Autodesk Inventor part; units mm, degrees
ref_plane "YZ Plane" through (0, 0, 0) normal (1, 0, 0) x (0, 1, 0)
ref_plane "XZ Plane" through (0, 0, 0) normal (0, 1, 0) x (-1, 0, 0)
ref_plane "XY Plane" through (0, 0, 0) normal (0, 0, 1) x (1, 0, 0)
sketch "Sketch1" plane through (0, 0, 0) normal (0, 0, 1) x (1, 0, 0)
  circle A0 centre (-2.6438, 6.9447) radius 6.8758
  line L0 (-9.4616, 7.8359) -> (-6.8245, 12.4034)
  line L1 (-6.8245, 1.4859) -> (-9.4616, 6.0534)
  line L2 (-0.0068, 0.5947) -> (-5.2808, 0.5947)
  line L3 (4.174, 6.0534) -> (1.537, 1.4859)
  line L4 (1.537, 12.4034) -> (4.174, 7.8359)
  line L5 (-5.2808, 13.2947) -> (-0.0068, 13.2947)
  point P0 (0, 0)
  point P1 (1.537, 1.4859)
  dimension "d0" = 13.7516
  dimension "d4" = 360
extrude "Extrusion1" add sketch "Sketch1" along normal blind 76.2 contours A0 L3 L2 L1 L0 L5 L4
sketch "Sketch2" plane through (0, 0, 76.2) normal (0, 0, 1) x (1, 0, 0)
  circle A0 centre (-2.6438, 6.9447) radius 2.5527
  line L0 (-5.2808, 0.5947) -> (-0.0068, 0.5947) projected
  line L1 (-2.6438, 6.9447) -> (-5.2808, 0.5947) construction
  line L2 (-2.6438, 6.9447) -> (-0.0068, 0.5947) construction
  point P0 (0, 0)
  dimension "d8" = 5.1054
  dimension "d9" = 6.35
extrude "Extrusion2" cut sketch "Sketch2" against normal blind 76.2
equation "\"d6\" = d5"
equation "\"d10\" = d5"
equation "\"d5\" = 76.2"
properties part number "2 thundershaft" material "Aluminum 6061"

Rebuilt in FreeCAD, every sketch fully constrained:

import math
import FreeCAD as App
import Part
import Sketcher
Q = App.Units.Quantity

doc = App.newDocument("Part")
params = doc.addObject("Spreadsheet::Sheet", "Params")
for row, (alias, value) in enumerate([
    ("pad1_length", "3 in"),
    ("sketch2_diameter", "0.201 in"),
    ("pocket1_length", "3 in"),
], start=1):
    params.set(f"A{row}", alias)
    params.set(f"B{row}", "=" + value)
    params.setAlias(f"B{row}", alias)

body = doc.addObject("PartDesign::Body", "Body")

# Sketch on XY plane
sketch1 = body.newObject("Sketcher::SketchObject", "Sketch")
sketch1.AttachmentSupport = (doc.getObject("XY_Plane"), [""])
sketch1.MapMode = "FlatFace"
sketch1.addGeometry(Part.ArcOfCircle(Part.Circle(App.Vector(-2.6438, 6.9447, 0), App.Vector(0, 0, 1), 6.8758), math.radians(-7.448114), math.radians(7.447287)), False)
sketch1.addGeometry(Part.LineSegment(App.Vector(4.174, 7.8359, 0), App.Vector(1.537, 12.4034, 0)), False)
sketch1.addGeometry(Part.ArcOfCircle(Part.Circle(App.Vector(-2.6438, 6.9447, 0), App.Vector(0, 0, 1), 6.8758), math.radians(52.551618), math.radians(67.448081)), False)
sketch1.addGeometry(Part.LineSegment(App.Vector(-0.0068, 13.2947, 0), App.Vector(-5.2808, 13.2947, 0)), False)
sketch1.addGeometry(Part.ArcOfCircle(Part.Circle(App.Vector(-2.6438, 6.9447, 0), App.Vector(0, 0, 1), 6.8758), math.radians(112.551919), math.radians(127.447721)), False)
sketch1.addGeometry(Part.LineSegment(App.Vector(-6.8245, 12.4034, 0), App.Vector(-9.4616, 7.8359, 0)), False)
sketch1.addGeometry(Part.ArcOfCircle(Part.Circle(App.Vector(-2.6438, 6.9447, 0), App.Vector(0, 0, 1), 6.8758), math.radians(172.552713), math.radians(187.448114)), False)
sketch1.addGeometry(Part.LineSegment(App.Vector(-9.4616, 6.0534, 0), App.Vector(-6.8245, 1.4859, 0)), False)
sketch1.addGeometry(Part.ArcOfCircle(Part.Circle(App.Vector(-2.6438, 6.9447, 0), App.Vector(0, 0, 1), 6.8758), math.radians(-127.447214), math.radians(-112.551919)), False)
sketch1.addGeometry(Part.LineSegment(App.Vector(-5.2808, 0.5947, 0), App.Vector(-0.0068, 0.5947, 0)), False)
sketch1.addGeometry(Part.ArcOfCircle(Part.Circle(App.Vector(-2.6438, 6.9447, 0), App.Vector(0, 0, 1), 6.8758), math.radians(-67.448081), math.radians(-52.552124)), False)
sketch1.addGeometry(Part.LineSegment(App.Vector(1.537, 1.4859, 0), App.Vector(4.174, 6.0534, 0)), False)
sketch1.addConstraint(Sketcher.Constraint("Coincident", 0, 2, 1, 1))
sketch1.addConstraint(Sketcher.Constraint("Coincident", 1, 2, 2, 1))
sketch1.addConstraint(Sketcher.Constraint("Coincident", 2, 2, 3, 1))
sketch1.addConstraint(Sketcher.Constraint("Coincident", 3, 2, 4, 1))
sketch1.addConstraint(Sketcher.Constraint("Coincident", 4, 2, 5, 1))
sketch1.addConstraint(Sketcher.Constraint("Coincident", 5, 2, 6, 1))
sketch1.addConstraint(Sketcher.Constraint("Coincident", 6, 2, 7, 1))
sketch1.addConstraint(Sketcher.Constraint("Coincident", 7, 2, 8, 1))
sketch1.addConstraint(Sketcher.Constraint("Coincident", 8, 2, 9, 1))
sketch1.addConstraint(Sketcher.Constraint("Coincident", 9, 2, 10, 1))
sketch1.addConstraint(Sketcher.Constraint("Coincident", 10, 2, 11, 1))
sketch1.addConstraint(Sketcher.Constraint("Coincident", 11, 2, 0, 1))
sketch1.addConstraint(Sketcher.Constraint("Horizontal", 3))
sketch1.addConstraint(Sketcher.Constraint("Horizontal", 9))
sketch1.addConstraint(Sketcher.Constraint("Coincident", 2, 3, 0, 3))
sketch1.addConstraint(Sketcher.Constraint("Coincident", 4, 3, 0, 3))
sketch1.addConstraint(Sketcher.Constraint("Coincident", 6, 3, 0, 3))
sketch1.addConstraint(Sketcher.Constraint("Coincident", 8, 3, 0, 3))
sketch1.addConstraint(Sketcher.Constraint("Coincident", 10, 3, 0, 3))
sketch1.addConstraint(Sketcher.Constraint("Equal", 0, 2))
sketch1.addConstraint(Sketcher.Constraint("Equal", 2, 4))
sketch1.addConstraint(Sketcher.Constraint("Equal", 4, 6))
sketch1.addConstraint(Sketcher.Constraint("Equal", 6, 8))
sketch1.addConstraint(Sketcher.Constraint("Equal", 8, 10))
sketch1.addConstraint(Sketcher.Constraint("Parallel", 1, 7))
sketch1.addConstraint(Sketcher.Constraint("Parallel", 5, 11))
sketch1.addConstraint(Sketcher.Constraint("Horizontal", 1, 2, 4, 2))
sketch1.addConstraint(Sketcher.Constraint("Horizontal", 0, 2, 5, 2))
sketch1.addConstraint(Sketcher.Constraint("Horizontal", 7, 2, 10, 2))
sketch1.addConstraint(Sketcher.Constraint("Vertical", 5, 2, 6, 2))
sketch1.addConstraint(Sketcher.Constraint("Vertical", 3, 2, 8, 2))
sketch1.addConstraint(Sketcher.Constraint("Radius", 0, Q("0.2707 in")))
sketch1.addConstraint(Sketcher.Constraint("Angle", 1, Q("119.9996 deg")))
sketch1.addConstraint(Sketcher.Constraint("DistanceY", 0, 3, 2, 2, Q("0.25 in")))
sketch1.addConstraint(Sketcher.Constraint("DistanceY", 10, 2, 0, 2, Q("0.25 in")))
sketch1.addConstraint(Sketcher.Constraint("DistanceY", -1, 1, 0, 2, Q("0.3085 in")))
sketch1.addConstraint(Sketcher.Constraint("DistanceX", -1, 1, 1, 2, Q("0.0605 in")))
pad1 = body.newObject("PartDesign::Pad", "Pad")
pad1.Profile = sketch1
pad1.setExpression("Length", "Params.pad1_length")

# Sketch on XY plane
sketch2 = body.newObject("Sketcher::SketchObject", "Sketch001")
sketch2.AttachmentSupport = (doc.getObject("XY_Plane"), [""])
sketch2.MapMode = "FlatFace"
sketch2.AttachmentOffset = App.Placement(App.Vector(0, 0, 3 * 25.4), App.Rotation())
sketch2.addGeometry(Part.Circle(App.Vector(-2.6438, 6.9447, 0), App.Vector(0, 0, 1), 2.5527), False)
sketch2.addConstraint(Sketcher.Constraint("Diameter", 0, Q("0.201 in")))
sketch2.addConstraint(Sketcher.Constraint("DistanceX", 0, 3, -1, 1, 2.6438))
sketch2.addConstraint(Sketcher.Constraint("DistanceY", -1, 1, 0, 3, 6.9447))
sketch2.setExpression("Constraints[0]", "Params.sketch2_diameter")
pocket1 = body.newObject("PartDesign::Pocket", "Pocket")
pocket1.Profile = sketch2
pocket1.setExpression("Length", "Params.pocket1_length")

doc.recompute()
